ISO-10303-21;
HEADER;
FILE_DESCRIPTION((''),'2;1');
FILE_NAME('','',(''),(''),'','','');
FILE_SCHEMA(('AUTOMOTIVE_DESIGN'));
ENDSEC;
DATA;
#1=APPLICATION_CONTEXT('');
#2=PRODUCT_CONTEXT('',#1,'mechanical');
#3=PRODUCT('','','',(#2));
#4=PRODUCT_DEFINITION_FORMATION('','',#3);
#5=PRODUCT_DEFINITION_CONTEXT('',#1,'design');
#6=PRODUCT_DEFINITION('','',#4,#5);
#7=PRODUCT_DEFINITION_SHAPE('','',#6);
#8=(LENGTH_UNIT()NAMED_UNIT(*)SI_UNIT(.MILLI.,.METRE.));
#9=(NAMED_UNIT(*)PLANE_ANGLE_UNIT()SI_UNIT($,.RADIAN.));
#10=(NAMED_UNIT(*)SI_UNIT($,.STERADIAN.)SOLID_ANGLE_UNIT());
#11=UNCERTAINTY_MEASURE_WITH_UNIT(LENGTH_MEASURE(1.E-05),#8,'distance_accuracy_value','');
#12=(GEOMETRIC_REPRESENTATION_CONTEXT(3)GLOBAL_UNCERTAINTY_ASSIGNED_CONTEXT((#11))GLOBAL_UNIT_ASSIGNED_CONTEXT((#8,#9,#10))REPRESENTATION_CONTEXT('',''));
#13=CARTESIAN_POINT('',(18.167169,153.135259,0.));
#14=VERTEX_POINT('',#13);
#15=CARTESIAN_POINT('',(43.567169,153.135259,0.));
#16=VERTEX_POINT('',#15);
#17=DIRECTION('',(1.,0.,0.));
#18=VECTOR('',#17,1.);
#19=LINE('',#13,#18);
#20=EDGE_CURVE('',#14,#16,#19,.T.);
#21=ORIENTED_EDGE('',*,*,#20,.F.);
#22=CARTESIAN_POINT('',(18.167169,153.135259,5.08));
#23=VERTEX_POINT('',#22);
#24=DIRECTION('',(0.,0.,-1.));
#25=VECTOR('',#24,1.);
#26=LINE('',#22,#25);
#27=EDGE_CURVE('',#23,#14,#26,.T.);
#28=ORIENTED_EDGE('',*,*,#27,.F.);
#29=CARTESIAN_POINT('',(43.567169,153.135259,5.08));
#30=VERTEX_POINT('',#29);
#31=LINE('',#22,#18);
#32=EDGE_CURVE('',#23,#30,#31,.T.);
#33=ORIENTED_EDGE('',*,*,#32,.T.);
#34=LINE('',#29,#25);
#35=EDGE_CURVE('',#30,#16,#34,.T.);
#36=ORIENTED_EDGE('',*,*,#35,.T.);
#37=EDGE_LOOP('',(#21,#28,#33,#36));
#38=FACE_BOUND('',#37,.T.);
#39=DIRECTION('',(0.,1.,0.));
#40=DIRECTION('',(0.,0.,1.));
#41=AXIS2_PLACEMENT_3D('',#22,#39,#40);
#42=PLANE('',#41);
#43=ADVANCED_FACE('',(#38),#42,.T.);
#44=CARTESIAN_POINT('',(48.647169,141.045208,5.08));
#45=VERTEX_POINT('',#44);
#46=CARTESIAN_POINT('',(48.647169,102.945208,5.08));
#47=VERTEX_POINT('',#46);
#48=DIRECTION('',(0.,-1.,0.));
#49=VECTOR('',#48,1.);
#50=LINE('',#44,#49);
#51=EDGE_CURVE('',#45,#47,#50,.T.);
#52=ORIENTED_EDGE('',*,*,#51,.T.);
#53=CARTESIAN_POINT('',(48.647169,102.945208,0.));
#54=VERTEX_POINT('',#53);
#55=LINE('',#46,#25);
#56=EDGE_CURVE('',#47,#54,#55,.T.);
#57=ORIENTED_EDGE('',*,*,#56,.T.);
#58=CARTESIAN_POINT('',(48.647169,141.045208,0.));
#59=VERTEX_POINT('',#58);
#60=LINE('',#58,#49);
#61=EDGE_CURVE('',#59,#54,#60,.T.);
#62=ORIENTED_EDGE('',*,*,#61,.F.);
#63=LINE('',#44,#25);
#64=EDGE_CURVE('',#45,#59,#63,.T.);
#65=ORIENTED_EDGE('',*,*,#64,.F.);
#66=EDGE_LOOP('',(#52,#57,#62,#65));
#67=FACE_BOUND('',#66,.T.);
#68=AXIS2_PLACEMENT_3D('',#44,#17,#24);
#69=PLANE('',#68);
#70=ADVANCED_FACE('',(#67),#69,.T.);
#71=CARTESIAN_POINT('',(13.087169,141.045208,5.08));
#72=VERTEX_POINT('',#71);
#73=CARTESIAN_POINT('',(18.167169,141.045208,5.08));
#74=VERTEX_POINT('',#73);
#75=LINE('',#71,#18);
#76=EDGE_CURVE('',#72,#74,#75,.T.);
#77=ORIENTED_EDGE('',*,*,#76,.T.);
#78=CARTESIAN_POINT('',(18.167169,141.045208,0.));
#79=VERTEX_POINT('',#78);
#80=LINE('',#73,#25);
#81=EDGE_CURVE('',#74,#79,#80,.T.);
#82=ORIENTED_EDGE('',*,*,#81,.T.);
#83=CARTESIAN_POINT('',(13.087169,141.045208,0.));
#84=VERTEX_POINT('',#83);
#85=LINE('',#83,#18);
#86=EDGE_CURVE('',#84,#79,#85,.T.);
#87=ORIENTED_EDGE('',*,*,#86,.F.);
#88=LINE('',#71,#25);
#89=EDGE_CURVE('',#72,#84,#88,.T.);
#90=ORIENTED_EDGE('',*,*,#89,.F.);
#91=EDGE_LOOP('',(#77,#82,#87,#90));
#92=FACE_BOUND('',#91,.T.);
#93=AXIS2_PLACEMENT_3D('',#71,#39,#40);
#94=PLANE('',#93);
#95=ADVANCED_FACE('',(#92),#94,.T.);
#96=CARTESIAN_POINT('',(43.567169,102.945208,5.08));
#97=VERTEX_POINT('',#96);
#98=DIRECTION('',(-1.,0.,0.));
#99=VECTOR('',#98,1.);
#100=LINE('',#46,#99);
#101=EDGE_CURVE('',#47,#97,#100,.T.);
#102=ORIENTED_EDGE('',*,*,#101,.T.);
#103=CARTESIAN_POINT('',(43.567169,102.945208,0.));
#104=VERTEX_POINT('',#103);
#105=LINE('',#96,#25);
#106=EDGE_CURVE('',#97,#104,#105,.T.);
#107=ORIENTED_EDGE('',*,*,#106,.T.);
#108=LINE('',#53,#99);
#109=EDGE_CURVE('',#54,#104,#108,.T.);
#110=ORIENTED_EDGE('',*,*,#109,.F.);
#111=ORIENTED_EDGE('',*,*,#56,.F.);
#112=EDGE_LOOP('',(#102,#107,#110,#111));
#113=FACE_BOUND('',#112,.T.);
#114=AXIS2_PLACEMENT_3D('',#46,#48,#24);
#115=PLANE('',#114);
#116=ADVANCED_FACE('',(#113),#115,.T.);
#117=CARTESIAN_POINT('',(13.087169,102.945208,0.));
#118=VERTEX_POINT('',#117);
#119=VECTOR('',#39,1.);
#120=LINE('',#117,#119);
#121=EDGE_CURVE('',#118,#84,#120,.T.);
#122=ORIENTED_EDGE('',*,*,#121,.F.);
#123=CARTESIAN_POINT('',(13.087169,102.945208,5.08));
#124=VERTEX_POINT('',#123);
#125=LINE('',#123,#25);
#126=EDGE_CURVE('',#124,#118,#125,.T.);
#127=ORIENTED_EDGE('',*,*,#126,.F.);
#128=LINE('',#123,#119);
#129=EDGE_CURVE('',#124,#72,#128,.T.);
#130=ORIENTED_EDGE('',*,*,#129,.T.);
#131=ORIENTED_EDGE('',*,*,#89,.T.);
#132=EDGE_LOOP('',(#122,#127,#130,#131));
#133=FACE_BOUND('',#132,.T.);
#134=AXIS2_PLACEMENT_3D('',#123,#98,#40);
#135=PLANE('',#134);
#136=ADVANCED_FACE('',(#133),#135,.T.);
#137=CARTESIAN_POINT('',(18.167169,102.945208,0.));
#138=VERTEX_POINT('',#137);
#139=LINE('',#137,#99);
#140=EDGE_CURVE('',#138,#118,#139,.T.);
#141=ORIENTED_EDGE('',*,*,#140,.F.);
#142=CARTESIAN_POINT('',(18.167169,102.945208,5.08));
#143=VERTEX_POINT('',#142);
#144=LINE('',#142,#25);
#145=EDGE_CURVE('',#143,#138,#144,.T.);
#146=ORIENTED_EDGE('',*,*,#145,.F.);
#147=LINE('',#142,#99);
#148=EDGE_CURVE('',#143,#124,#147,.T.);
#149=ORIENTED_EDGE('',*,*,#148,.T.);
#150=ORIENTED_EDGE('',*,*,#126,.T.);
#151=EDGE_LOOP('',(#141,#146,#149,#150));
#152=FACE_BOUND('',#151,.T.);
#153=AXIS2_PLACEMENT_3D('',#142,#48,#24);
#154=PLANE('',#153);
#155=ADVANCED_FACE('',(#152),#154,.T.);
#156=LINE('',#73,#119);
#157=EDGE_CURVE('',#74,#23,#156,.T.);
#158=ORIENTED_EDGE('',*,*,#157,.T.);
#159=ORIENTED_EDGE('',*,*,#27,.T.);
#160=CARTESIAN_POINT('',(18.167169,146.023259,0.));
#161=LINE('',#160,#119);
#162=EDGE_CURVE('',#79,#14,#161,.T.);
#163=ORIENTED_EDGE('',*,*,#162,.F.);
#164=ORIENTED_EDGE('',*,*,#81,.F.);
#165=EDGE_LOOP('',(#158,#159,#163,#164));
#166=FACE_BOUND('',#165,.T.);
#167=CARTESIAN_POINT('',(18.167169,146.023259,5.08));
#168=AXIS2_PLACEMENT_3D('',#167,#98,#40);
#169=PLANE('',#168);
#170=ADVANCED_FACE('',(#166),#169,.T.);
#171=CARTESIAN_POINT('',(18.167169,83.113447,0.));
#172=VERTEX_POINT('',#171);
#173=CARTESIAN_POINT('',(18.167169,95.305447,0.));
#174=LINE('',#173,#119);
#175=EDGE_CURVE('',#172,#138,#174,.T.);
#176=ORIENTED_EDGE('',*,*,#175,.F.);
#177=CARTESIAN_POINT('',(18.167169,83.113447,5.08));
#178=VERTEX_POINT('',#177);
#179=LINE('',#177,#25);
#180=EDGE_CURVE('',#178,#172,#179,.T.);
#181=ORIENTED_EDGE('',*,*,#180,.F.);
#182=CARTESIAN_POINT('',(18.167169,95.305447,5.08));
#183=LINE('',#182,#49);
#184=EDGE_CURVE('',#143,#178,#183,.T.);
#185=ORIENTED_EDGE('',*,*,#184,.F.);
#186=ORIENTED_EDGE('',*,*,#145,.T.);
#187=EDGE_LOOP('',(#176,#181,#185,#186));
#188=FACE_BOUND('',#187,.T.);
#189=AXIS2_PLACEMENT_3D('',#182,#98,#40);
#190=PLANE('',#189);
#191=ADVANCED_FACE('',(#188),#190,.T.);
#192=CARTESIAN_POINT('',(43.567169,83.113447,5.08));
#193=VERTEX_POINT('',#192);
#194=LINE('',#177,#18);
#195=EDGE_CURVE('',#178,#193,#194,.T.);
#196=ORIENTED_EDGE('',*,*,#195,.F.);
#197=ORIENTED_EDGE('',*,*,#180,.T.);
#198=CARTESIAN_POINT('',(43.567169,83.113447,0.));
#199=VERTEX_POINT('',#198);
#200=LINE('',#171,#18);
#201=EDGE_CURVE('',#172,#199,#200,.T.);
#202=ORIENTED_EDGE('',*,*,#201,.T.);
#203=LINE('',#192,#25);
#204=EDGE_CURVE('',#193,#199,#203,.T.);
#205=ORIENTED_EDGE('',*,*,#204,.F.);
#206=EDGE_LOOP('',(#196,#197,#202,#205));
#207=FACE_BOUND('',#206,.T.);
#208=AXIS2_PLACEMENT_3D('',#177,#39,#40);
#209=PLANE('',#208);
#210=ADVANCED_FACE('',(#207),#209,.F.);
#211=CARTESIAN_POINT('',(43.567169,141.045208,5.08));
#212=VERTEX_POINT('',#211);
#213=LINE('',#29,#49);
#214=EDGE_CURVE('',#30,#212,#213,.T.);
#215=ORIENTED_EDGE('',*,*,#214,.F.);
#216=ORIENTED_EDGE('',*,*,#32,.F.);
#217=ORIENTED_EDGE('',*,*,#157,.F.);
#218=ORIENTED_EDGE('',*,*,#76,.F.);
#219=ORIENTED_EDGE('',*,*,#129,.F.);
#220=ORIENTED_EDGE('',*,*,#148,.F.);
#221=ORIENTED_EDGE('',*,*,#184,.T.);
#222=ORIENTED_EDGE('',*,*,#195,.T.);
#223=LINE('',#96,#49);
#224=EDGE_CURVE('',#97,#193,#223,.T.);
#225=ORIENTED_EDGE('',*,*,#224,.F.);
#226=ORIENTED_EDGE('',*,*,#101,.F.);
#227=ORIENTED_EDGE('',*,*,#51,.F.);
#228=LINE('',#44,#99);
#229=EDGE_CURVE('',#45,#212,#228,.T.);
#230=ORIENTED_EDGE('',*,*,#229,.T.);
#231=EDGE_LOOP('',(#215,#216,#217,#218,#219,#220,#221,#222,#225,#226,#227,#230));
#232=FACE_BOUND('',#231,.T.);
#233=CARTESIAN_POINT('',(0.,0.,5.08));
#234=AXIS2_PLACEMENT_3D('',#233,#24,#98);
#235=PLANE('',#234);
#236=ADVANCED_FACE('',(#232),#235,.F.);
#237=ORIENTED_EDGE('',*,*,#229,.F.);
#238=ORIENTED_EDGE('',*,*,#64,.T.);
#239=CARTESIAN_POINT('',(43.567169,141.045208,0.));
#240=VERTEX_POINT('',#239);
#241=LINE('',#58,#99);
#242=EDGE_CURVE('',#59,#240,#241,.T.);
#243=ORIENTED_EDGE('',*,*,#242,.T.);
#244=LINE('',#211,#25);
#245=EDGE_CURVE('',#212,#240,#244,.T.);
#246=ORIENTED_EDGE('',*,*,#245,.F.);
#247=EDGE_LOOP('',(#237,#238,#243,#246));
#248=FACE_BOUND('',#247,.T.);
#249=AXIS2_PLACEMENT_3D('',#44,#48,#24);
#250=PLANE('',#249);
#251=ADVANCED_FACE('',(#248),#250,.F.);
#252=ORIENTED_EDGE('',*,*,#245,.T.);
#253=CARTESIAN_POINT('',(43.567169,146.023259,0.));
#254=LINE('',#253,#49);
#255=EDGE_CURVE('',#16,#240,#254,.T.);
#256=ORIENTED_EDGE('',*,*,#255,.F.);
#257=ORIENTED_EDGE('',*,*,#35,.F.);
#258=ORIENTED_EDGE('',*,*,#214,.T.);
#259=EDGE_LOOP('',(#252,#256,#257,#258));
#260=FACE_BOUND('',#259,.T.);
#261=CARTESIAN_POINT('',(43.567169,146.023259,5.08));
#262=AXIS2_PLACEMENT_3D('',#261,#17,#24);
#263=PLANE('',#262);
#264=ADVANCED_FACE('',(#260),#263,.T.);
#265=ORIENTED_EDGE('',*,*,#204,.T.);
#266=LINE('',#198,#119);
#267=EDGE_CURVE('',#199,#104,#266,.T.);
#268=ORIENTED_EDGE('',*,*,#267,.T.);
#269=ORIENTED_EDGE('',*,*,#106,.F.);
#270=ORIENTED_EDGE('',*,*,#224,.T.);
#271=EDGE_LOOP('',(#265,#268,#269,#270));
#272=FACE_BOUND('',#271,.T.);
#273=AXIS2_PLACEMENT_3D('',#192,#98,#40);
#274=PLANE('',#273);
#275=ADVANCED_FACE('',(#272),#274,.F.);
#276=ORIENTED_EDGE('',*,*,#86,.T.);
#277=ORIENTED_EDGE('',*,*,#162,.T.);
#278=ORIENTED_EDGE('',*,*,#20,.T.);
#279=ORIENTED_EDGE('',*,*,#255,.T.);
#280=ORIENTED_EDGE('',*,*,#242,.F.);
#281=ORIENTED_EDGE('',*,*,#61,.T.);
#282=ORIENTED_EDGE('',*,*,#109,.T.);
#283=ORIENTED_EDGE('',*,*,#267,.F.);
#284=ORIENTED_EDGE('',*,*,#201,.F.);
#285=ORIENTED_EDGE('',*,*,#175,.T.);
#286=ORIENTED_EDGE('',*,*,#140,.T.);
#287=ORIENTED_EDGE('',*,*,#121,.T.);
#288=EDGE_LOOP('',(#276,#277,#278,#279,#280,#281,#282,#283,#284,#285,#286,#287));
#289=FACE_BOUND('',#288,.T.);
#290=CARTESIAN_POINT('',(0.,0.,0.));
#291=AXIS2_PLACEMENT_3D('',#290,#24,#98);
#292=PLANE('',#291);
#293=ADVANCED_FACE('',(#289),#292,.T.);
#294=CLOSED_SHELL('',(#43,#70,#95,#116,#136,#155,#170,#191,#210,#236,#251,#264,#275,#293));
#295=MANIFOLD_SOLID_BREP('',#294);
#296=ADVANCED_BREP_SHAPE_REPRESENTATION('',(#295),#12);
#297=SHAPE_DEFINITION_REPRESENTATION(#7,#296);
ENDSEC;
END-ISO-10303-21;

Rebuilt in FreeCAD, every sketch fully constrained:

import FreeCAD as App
import Part
import Sketcher
Q = App.Units.Quantity

doc = App.newDocument("Part")
body = doc.addObject("PartDesign::Body", "Body")

# Sketch on XY plane
sketch1 = doc.addObject("Sketcher::SketchObject", "Sketch")
body.addObject(sketch1)
sketch1.AttachmentSupport = (doc.XY_Plane, [""])
sketch1.MapMode = "FlatFace"
sketch1.addGeometry([
    Part.LineSegment(App.Vector(48.647169, 141.045208, 0), App.Vector(43.567169, 141.045208, 0)),  # 0
    Part.LineSegment(App.Vector(43.567169, 141.045208, 0), App.Vector(43.567169, 153.135259, 0)),  # 1
    Part.LineSegment(App.Vector(43.567169, 153.135259, 0), App.Vector(18.167169, 153.135259, 0)),  # 2
    Part.LineSegment(App.Vector(18.167169, 153.135259, 0), App.Vector(18.167169, 141.045208, 0)),  # 3
    Part.LineSegment(App.Vector(18.167169, 141.045208, 0), App.Vector(13.087169, 141.045208, 0)),  # 4
    Part.LineSegment(App.Vector(13.087169, 141.045208, 0), App.Vector(13.087169, 102.945208, 0)),  # 5
    Part.LineSegment(App.Vector(13.087169, 102.945208, 0), App.Vector(18.167169, 102.945208, 0)),  # 6
    Part.LineSegment(App.Vector(18.167169, 102.945208, 0), App.Vector(18.167169, 83.113447, 0)),  # 7
    Part.LineSegment(App.Vector(18.167169, 83.113447, 0), App.Vector(43.567169, 83.113447, 0)),  # 8
    Part.LineSegment(App.Vector(43.567169, 83.113447, 0), App.Vector(43.567169, 102.945208, 0)),  # 9
    Part.LineSegment(App.Vector(43.567169, 102.945208, 0), App.Vector(48.647169, 102.945208, 0)),  # 10
    Part.LineSegment(App.Vector(48.647169, 102.945208, 0), App.Vector(48.647169, 141.045208, 0)),  # 11
], False)
sketch1.addConstraint([
    Sketcher.Constraint("Coincident", 0, 2, 1, 1),
    Sketcher.Constraint("Coincident", 1, 2, 2, 1),
    Sketcher.Constraint("Coincident", 2, 2, 3, 1),
    Sketcher.Constraint("Coincident", 3, 2, 4, 1),
    Sketcher.Constraint("Coincident", 4, 2, 5, 1),
    Sketcher.Constraint("Coincident", 5, 2, 6, 1),
    Sketcher.Constraint("Coincident", 6, 2, 7, 1),
    Sketcher.Constraint("Coincident", 7, 2, 8, 1),
    Sketcher.Constraint("Coincident", 8, 2, 9, 1),
    Sketcher.Constraint("Coincident", 9, 2, 10, 1),
    Sketcher.Constraint("Coincident", 10, 2, 11, 1),
    Sketcher.Constraint("Coincident", 11, 2, 0, 1),
    Sketcher.Constraint("Horizontal", 0),
    Sketcher.Constraint("Vertical", 1),
    Sketcher.Constraint("Horizontal", 2),
    Sketcher.Constraint("Vertical", 3),
    Sketcher.Constraint("Horizontal", 4),
    Sketcher.Constraint("Vertical", 5),
    Sketcher.Constraint("Horizontal", 6),
    Sketcher.Constraint("Vertical", 7),
    Sketcher.Constraint("Horizontal", 8),
    Sketcher.Constraint("Vertical", 9),
    Sketcher.Constraint("Horizontal", 10),
    Sketcher.Constraint("Vertical", 11),
    Sketcher.Constraint("Horizontal", 0, 2, 3, 2),
    Sketcher.Constraint("Horizontal", 6, 2, 9, 2),
    Sketcher.Constraint("Vertical", 3, 2, 6, 2),
    Sketcher.Constraint("Vertical", 1, 2, 8, 2),
    Sketcher.Constraint("Equal", 0, 4),
    Sketcher.Constraint("DistanceX", 2, 2, 2, 1, Q("1 in")),
    Sketcher.Constraint("DistanceX", 0, 2, 0, 1, Q("0.2 in")),
    Sketcher.Constraint("DistanceY", 5, 2, 5, 1, Q("1.5 in")),
    Sketcher.Constraint("DistanceY", 1, 1, 1, 2, Q("12.090051 mm")),
    Sketcher.Constraint("DistanceY", 7, 2, 7, 1, Q("19.831761 mm")),
    Sketcher.Constraint("DistanceX", -1, 1, 0, 2, Q("43.567169 mm")),
    Sketcher.Constraint("DistanceY", -1, 1, 0, 2, Q("141.045208 mm")),
])
pad1 = doc.addObject("PartDesign::Pad", "Pad")
body.addObject(pad1)
pad1.Profile = sketch1
pad1.Length = Q("0.2 in")

doc.recompute()
